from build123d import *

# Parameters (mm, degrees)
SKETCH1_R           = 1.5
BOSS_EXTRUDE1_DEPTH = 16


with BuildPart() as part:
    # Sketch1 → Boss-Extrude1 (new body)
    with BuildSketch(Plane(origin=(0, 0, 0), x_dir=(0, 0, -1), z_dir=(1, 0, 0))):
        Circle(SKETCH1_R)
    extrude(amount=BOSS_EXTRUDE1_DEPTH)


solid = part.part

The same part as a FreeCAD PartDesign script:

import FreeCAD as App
import Part
import Sketcher
from FreeCAD import Vector
Q = App.Units.Quantity

doc = App.newDocument("Part")
body = doc.addObject("PartDesign::Body", "Body")

sketch1 = doc.addObject("Sketcher::SketchObject", "Sketch")
body.addObject(sketch1)
sketch1.AttachmentSupport = (doc.YZ_Plane, [""])
sketch1.MapMode = "FlatFace"
sketch1.addGeometry(Part.Circle(Vector(0, 0, 0), Vector(0, 0, 1), 1.5), False)
sketch1.addConstraint([
    Sketcher.Constraint("Coincident", 0, 3, -1, 1),
    Sketcher.Constraint("Diameter", 0, Q("3 mm")),
])
pad1 = doc.addObject("PartDesign::Pad", "Pad")
body.addObject(pad1)
pad1.Profile = sketch1
pad1.Length = 16

doc.recompute()
